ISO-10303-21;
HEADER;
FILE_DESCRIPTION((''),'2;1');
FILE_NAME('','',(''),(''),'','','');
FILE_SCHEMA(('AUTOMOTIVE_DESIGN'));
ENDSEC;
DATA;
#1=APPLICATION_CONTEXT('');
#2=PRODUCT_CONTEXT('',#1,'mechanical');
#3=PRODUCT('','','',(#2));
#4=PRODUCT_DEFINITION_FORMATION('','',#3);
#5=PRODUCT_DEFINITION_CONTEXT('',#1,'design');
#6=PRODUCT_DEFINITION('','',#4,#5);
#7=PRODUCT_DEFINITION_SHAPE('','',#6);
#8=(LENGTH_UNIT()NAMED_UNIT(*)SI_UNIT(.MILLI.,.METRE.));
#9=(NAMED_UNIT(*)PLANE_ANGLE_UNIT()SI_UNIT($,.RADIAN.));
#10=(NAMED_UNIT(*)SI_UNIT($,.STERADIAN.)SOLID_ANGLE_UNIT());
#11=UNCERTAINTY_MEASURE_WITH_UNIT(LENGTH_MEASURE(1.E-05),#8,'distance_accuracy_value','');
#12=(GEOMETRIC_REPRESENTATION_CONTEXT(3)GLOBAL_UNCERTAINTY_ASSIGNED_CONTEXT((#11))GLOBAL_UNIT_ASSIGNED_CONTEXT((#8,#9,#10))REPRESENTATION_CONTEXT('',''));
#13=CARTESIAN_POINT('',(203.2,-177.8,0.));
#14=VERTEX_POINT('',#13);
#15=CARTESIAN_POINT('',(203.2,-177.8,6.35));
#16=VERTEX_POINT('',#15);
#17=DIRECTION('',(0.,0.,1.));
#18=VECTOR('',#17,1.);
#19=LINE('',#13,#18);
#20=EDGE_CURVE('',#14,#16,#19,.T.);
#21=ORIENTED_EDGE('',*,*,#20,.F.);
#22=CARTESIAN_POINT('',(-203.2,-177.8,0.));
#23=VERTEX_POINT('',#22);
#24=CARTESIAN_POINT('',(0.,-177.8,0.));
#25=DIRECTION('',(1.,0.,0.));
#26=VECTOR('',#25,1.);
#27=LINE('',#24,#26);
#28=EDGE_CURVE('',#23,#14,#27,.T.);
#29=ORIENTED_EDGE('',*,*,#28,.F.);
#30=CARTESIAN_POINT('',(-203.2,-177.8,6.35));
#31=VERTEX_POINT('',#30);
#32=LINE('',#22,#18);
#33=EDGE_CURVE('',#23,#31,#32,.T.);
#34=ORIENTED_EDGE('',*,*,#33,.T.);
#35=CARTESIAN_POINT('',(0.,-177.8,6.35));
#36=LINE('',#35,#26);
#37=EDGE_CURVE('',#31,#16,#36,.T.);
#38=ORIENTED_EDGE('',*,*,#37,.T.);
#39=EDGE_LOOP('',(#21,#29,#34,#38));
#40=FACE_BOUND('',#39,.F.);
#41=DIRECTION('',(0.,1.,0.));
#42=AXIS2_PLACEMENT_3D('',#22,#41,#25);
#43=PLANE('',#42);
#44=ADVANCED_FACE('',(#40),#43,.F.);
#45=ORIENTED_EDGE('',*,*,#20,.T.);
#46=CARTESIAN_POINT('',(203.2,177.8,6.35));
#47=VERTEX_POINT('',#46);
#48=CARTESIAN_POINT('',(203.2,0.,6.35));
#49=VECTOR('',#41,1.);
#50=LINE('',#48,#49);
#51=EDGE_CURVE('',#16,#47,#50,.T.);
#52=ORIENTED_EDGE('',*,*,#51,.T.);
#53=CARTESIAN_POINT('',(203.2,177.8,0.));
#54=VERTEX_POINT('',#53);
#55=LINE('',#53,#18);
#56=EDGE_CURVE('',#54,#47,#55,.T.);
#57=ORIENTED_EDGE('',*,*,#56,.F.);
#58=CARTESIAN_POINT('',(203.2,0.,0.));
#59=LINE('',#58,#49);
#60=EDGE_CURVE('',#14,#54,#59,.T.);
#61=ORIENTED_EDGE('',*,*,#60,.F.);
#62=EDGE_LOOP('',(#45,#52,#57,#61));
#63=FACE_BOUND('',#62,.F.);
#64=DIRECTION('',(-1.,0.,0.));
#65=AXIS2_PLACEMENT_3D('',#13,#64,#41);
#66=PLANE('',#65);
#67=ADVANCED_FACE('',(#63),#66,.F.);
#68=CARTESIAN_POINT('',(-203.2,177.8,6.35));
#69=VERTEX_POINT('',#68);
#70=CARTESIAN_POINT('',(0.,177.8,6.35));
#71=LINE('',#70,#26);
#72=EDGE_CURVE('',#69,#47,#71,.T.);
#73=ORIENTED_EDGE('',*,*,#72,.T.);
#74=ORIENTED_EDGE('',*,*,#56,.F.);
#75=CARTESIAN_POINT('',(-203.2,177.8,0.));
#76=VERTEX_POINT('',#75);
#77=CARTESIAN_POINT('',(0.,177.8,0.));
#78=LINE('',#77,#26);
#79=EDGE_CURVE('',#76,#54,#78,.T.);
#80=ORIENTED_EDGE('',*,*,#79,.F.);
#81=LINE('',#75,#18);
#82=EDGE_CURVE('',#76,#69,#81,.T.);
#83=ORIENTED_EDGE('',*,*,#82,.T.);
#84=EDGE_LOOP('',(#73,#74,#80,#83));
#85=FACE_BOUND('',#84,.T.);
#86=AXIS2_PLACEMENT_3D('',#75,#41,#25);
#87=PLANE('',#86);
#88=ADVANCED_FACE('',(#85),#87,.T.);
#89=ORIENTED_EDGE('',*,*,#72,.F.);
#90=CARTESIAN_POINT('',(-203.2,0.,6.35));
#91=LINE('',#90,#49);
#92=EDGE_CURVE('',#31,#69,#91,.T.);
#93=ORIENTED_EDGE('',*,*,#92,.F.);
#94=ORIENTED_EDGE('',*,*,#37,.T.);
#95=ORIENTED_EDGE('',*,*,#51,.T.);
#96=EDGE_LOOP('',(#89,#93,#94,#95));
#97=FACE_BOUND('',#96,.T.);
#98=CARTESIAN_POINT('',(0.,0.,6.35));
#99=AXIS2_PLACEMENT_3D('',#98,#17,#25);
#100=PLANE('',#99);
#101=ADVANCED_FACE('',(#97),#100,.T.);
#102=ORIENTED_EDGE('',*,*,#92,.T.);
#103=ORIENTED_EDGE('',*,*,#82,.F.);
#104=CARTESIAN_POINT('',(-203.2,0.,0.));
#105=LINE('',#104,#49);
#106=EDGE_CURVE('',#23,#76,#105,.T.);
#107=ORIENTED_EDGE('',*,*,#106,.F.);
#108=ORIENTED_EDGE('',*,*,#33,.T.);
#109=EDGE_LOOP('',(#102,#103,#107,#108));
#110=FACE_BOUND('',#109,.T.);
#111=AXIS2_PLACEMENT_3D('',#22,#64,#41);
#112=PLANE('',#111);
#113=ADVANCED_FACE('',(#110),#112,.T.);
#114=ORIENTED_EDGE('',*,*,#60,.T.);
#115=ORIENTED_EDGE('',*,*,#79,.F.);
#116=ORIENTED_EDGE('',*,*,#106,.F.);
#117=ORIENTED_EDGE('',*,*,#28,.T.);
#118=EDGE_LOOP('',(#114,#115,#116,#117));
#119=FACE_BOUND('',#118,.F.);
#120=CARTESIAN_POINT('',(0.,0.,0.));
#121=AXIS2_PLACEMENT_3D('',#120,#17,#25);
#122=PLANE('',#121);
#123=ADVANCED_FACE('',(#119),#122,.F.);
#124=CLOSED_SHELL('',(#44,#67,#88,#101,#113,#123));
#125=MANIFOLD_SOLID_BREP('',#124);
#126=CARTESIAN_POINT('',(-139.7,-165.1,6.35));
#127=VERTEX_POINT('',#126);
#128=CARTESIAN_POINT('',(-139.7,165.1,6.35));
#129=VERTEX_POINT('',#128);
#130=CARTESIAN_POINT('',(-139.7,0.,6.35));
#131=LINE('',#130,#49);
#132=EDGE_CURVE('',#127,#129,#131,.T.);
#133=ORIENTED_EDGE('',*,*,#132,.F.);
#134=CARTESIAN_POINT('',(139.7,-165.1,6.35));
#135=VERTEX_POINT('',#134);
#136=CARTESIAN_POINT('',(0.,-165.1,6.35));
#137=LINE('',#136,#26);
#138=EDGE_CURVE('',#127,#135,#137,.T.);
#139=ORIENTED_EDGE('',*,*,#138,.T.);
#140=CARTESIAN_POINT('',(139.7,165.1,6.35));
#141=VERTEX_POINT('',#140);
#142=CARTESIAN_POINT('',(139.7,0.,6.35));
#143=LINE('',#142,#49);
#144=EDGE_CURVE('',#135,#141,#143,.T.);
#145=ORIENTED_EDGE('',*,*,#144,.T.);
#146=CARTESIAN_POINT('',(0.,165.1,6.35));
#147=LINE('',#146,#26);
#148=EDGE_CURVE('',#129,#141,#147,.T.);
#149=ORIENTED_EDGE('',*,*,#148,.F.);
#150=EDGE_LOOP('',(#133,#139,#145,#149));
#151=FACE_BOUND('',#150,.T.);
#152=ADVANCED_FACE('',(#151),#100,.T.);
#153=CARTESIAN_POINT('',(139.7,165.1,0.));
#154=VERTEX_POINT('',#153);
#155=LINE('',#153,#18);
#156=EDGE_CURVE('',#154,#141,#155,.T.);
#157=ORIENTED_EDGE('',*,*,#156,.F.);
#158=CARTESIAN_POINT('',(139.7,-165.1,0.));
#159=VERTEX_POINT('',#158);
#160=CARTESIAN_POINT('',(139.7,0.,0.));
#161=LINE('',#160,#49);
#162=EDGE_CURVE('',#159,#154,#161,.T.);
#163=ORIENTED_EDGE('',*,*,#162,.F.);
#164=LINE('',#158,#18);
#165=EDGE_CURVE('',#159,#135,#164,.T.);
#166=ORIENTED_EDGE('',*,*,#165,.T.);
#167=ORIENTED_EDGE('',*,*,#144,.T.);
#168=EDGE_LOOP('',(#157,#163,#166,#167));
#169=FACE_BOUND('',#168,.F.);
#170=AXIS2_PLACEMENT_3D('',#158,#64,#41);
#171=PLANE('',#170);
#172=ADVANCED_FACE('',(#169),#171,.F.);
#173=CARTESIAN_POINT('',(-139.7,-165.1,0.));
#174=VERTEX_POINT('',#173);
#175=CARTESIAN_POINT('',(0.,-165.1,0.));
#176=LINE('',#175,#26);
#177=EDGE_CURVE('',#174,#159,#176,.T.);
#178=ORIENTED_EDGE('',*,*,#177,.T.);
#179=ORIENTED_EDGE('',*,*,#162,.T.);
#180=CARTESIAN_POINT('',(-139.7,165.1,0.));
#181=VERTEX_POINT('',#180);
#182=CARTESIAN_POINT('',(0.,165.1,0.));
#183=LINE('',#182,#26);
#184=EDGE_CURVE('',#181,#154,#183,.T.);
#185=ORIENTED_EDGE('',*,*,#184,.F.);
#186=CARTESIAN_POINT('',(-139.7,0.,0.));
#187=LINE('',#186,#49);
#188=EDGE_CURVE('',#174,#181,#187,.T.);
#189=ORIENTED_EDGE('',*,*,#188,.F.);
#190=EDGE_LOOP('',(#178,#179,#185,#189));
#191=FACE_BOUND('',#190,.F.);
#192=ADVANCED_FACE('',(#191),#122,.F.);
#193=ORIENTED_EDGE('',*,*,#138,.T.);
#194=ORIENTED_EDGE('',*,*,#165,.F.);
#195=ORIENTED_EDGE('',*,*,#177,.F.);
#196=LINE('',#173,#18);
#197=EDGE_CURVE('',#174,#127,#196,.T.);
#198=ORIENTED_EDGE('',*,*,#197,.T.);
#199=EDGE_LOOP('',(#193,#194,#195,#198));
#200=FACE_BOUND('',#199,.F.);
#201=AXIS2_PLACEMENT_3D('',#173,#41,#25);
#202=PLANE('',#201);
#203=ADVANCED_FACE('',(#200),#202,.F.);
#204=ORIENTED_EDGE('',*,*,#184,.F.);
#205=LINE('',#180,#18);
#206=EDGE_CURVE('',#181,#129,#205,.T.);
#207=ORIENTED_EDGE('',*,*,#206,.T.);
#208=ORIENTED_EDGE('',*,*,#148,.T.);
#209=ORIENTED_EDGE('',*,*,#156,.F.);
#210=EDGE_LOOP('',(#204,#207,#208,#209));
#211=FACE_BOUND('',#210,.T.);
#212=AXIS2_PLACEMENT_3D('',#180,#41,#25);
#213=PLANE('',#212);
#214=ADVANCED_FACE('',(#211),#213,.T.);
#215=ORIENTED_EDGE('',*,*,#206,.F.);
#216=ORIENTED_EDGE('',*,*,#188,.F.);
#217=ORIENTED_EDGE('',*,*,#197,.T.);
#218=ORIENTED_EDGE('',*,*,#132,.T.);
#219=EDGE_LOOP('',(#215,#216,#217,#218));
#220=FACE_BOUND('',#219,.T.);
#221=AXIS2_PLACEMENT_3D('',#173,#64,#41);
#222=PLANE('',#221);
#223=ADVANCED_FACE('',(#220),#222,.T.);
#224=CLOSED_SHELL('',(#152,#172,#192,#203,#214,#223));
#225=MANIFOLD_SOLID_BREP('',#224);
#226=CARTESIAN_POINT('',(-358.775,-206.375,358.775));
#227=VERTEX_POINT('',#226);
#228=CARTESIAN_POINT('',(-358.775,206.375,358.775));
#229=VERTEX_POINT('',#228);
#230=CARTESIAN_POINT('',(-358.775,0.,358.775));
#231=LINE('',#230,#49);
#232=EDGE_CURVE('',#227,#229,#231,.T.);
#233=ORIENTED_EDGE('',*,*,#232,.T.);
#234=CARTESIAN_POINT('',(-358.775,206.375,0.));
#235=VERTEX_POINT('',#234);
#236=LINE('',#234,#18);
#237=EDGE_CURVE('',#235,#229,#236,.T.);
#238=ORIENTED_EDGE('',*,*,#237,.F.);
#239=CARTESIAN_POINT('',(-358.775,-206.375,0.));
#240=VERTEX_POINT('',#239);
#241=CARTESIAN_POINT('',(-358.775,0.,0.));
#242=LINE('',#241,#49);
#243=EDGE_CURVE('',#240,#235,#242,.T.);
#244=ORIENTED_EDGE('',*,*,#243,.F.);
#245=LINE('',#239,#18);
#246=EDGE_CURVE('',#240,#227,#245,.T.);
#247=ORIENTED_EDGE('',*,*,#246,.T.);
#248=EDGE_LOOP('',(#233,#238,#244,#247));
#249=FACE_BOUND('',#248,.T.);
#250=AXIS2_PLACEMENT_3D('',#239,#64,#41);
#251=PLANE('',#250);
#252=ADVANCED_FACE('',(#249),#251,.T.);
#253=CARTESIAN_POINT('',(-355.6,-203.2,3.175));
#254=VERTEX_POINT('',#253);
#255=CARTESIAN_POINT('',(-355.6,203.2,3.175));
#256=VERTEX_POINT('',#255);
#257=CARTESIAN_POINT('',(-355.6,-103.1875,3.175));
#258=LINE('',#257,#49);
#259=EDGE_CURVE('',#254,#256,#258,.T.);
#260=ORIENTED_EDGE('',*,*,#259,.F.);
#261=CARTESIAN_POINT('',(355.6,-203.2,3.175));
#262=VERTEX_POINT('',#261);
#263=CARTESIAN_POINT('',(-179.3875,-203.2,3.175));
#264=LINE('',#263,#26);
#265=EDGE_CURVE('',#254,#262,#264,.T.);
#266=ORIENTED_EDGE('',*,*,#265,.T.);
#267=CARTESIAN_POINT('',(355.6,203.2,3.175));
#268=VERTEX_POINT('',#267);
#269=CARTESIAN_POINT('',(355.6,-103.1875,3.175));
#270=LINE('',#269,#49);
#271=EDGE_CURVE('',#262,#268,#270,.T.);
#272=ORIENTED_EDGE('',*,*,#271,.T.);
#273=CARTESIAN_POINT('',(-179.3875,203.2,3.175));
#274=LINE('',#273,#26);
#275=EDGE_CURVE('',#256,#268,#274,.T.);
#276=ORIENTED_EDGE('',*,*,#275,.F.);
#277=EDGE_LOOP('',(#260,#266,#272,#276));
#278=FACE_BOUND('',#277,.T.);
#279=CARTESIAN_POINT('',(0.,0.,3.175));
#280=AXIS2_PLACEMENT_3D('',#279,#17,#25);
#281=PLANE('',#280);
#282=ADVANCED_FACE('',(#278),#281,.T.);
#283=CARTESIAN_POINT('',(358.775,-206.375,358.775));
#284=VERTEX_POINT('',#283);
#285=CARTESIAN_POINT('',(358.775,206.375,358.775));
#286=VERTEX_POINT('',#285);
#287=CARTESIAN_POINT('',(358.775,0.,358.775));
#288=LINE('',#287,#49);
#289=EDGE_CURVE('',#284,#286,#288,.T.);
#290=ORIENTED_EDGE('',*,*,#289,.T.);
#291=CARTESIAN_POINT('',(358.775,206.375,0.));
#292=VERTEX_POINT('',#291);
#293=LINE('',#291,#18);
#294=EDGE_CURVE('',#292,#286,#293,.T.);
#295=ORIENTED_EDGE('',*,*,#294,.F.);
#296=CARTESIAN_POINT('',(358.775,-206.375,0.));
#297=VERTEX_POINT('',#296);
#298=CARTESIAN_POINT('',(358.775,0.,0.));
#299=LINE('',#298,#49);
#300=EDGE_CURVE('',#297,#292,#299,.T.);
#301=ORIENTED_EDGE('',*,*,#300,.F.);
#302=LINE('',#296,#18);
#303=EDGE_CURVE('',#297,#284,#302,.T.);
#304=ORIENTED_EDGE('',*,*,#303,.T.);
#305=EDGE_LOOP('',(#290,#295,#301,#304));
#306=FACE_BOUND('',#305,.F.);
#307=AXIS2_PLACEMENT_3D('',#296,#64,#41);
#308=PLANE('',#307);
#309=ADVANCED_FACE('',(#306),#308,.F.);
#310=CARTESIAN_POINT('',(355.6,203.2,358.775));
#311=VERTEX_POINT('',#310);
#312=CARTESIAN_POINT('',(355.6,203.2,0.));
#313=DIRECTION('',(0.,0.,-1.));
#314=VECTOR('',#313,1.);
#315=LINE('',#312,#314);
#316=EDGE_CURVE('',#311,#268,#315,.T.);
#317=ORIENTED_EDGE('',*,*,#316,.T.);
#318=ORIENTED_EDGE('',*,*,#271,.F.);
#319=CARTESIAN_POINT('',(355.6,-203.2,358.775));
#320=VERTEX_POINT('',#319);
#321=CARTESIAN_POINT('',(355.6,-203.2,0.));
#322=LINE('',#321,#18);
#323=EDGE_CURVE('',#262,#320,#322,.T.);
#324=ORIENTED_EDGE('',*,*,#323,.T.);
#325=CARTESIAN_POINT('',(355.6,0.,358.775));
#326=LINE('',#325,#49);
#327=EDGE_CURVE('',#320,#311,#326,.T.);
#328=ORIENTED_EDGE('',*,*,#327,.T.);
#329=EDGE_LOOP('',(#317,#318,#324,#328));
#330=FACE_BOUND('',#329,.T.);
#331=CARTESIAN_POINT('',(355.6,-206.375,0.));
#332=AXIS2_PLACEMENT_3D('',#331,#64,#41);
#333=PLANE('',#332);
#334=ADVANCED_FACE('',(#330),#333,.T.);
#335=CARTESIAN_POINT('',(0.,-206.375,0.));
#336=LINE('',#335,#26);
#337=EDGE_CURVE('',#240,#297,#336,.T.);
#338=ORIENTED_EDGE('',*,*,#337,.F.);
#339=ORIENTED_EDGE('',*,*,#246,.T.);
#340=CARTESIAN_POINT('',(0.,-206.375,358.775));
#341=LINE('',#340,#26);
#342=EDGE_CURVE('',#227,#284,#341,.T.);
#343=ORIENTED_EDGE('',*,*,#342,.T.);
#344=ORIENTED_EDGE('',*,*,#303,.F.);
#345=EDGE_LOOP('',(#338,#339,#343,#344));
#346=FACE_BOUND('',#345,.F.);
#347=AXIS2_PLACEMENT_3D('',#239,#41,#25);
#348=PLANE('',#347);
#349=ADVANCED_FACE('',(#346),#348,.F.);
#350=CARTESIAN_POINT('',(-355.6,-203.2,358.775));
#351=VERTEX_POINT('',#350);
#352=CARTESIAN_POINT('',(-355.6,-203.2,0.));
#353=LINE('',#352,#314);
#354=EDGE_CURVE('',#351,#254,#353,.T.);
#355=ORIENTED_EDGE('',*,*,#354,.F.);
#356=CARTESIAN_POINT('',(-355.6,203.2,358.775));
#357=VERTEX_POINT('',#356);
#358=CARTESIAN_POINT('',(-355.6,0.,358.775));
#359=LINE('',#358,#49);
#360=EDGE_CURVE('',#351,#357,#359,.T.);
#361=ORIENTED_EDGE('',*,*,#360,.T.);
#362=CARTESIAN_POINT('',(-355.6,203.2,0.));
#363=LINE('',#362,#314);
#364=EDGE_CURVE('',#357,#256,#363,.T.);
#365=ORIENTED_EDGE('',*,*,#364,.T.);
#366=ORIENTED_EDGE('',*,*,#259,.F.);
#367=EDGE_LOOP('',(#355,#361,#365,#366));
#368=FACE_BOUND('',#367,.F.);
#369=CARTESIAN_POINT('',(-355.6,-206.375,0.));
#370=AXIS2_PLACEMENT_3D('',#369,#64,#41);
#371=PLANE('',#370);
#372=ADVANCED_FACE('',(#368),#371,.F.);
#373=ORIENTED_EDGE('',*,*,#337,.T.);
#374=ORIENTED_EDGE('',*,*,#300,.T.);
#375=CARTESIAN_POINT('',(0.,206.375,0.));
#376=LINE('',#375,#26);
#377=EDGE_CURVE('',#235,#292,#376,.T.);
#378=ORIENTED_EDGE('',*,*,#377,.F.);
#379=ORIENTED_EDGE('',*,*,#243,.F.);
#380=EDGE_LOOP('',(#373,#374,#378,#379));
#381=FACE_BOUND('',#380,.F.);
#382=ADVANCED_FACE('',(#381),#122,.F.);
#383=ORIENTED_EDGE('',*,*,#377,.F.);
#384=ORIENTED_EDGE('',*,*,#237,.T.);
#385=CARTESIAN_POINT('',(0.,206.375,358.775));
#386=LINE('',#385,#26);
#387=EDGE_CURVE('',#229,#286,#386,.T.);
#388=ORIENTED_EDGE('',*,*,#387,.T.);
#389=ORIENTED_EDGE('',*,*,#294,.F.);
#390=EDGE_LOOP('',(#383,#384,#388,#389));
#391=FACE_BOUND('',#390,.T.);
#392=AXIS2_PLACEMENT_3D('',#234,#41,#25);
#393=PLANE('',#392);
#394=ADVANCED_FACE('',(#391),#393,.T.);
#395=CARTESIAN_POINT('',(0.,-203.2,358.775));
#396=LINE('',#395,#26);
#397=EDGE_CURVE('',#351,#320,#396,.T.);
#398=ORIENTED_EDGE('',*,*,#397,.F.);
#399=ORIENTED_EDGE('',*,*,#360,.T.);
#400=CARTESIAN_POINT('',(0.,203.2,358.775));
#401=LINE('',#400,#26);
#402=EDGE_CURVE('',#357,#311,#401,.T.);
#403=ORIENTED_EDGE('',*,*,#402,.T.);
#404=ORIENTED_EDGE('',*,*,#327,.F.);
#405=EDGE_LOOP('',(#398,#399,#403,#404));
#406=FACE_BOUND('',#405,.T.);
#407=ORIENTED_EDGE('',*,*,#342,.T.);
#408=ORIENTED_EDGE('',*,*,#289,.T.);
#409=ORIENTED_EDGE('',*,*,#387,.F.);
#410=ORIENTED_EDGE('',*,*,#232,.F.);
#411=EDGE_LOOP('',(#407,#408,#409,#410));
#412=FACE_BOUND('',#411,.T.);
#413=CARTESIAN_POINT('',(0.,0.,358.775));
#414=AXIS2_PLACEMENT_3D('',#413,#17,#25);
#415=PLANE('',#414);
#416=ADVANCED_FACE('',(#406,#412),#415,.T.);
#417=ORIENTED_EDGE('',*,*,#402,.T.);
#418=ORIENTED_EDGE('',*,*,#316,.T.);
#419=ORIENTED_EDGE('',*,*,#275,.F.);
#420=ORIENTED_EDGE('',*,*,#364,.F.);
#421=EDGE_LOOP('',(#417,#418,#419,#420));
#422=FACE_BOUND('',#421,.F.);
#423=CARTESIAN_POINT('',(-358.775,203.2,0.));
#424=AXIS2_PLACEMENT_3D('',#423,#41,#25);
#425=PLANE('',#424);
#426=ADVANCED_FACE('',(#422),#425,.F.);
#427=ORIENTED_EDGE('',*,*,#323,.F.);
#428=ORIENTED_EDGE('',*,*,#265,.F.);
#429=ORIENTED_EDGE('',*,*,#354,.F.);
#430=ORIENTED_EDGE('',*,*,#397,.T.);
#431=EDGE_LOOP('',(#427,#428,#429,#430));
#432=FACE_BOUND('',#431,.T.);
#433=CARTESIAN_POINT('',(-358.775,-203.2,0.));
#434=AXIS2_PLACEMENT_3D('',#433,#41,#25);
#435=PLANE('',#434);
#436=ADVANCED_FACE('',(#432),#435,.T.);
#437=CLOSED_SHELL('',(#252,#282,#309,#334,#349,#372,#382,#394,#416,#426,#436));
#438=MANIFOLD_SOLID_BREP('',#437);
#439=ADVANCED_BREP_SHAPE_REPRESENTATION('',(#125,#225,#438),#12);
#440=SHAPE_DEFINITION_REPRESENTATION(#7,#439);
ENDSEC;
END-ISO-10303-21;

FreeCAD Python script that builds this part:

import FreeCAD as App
import Part
import Sketcher

V = App.Vector
Q = App.Units.Quantity


def faces_at(feature, points):
    """Names of the faces that lie closest to the given points."""
    faces = feature.Shape.Faces
    near = lambda p: min(range(len(faces)), key=lambda i: faces[i].distToShape(Part.Vertex(*p))[0])
    return sorted({f"Face{near(p) + 1}" for p in points})


def add_polygon(sketch, points):
    """Adds a closed chain of lines whose ends are joined by coincident constraints."""
    first, n = sketch.GeometryCount, len(points)
    for a, b in zip(points, points[1:] + points[:1]):
        sketch.addGeometry(Part.LineSegment(App.Vector(*a, 0), App.Vector(*b, 0)), False)
    for i in range(n):
        sketch.addConstraint(Sketcher.Constraint("Coincident", first + i, 2, first + (i + 1) % n, 1))

doc = App.newDocument("Part")
body = doc.addObject("PartDesign::Body", "Body")

sketch1 = body.newObject("Sketcher::SketchObject", "Sketch")
sketch1.AttachmentSupport = (doc.getObject("XY_Plane"), [""])
sketch1.MapMode = "FlatFace"
add_polygon(sketch1, [(-359, 206), (-359, -206), (359, -206), (359, 206)])
sketch1.addConstraint(Sketcher.Constraint("Vertical", 0))
sketch1.addConstraint(Sketcher.Constraint("Horizontal", 1))
sketch1.addConstraint(Sketcher.Constraint("Vertical", 2))
sketch1.addConstraint(Sketcher.Constraint("Horizontal", 3))
sketch1.addConstraint(Sketcher.Constraint("Symmetric", 0, 2, 2, 2, -1, 1))
sketch1.addConstraint(Sketcher.Constraint("DistanceX", 1, 1, 1, 2, Q("28.25 in")))
sketch1.addConstraint(Sketcher.Constraint("DistanceY", 0, 2, 0, 1, Q("16.25 in")))
pad1 = body.newObject("PartDesign::Pad", "Pad")
pad1.Profile = sketch1
pad1.Length = Q("14.125 in")
doc.recompute()

thickness = body.newObject("PartDesign::Thickness", "Thickness")
thickness.Base = (pad1, faces_at(pad1, [(0, 0, 358.775)]))
thickness.Value = Q("0.125 in")
thickness.Reversed = True
thickness.Join = "Arc"
body2 = doc.addObject("PartDesign::Body", "Body001")

sketch2 = body2.newObject("Sketcher::SketchObject", "Sketch001")
sketch2.AttachmentSupport = (doc.getObject("XY_Plane001"), [""])
sketch2.MapMode = "FlatFace"
add_polygon(sketch2, [(-203, 178), (-203, -178), (203, -178), (203, 178)])
sketch2.addConstraint(Sketcher.Constraint("Vertical", 0))
sketch2.addConstraint(Sketcher.Constraint("Horizontal", 1))
sketch2.addConstraint(Sketcher.Constraint("Vertical", 2))
sketch2.addConstraint(Sketcher.Constraint("Horizontal", 3))
sketch2.addConstraint(Sketcher.Constraint("Symmetric", 0, 2, 2, 2, -1, 1))
sketch2.addConstraint(Sketcher.Constraint("DistanceX", 1, 1, 1, 2, Q("16 in")))
sketch2.addConstraint(Sketcher.Constraint("DistanceY", 0, 2, 0, 1, Q("14 in")))
pad2 = body2.newObject("PartDesign::Pad", "Pad001")
pad2.Profile = sketch2
pad2.Length = Q("0.25 in")
body3 = doc.addObject("PartDesign::Body", "Body002")

sketch3 = body3.newObject("Sketcher::SketchObject", "Sketch002")
sketch3.AttachmentSupport = (doc.getObject("XY_Plane002"), [""])
sketch3.MapMode = "FlatFace"
add_polygon(sketch3, [(-140, 165), (-140, -165), (140, -165), (140, 165)])
sketch3.addConstraint(Sketcher.Constraint("Vertical", 0))
sketch3.addConstraint(Sketcher.Constraint("Horizontal", 1))
sketch3.addConstraint(Sketcher.Constraint("Vertical", 2))
sketch3.addConstraint(Sketcher.Constraint("Horizontal", 3))
sketch3.addConstraint(Sketcher.Constraint("Symmetric", 0, 2, 2, 2, -1, 1))
sketch3.addConstraint(Sketcher.Constraint("DistanceX", 1, 1, 1, 2, Q("11 in")))
sketch3.addConstraint(Sketcher.Constraint("DistanceY", 0, 2, 0, 1, Q("13 in")))
pad3 = body3.newObject("PartDesign::Pad", "Pad002")
pad3.Profile = sketch3
pad3.Length = Q("0.25 in")

doc.recompute()
